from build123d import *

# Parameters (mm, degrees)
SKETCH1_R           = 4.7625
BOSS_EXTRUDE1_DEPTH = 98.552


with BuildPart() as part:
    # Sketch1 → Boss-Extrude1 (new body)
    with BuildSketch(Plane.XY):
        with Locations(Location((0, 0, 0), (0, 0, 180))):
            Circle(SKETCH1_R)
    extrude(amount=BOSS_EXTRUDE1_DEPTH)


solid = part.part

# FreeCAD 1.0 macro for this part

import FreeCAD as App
import Part
import Sketcher
from FreeCAD import Vector
Q = App.Units.Quantity

doc = App.newDocument("Part")
body = doc.addObject("PartDesign::Body", "Body")

# Sketch on XY plane
sketch1 = doc.addObject("Sketcher::SketchObject", "Sketch")
body.addObject(sketch1)
sketch1.AttachmentSupport = (doc.XY_Plane, [""])
sketch1.MapMode = "FlatFace"
sketch1.addGeometry(Part.Circle(Vector(0, 0, 0), Vector(0, 0, 1), 4.7625), False)
sketch1.addConstraint([
    Sketcher.Constraint("Coincident", 0, 3, -1, 1),
    Sketcher.Constraint("Diameter", 0, Q("0.375 in")),
])
pad1 = doc.addObject("PartDesign::Pad", "Pad")
body.addObject(pad1)
pad1.Profile = sketch1
pad1.Length = Q("3.88 in")

doc.recompute()
